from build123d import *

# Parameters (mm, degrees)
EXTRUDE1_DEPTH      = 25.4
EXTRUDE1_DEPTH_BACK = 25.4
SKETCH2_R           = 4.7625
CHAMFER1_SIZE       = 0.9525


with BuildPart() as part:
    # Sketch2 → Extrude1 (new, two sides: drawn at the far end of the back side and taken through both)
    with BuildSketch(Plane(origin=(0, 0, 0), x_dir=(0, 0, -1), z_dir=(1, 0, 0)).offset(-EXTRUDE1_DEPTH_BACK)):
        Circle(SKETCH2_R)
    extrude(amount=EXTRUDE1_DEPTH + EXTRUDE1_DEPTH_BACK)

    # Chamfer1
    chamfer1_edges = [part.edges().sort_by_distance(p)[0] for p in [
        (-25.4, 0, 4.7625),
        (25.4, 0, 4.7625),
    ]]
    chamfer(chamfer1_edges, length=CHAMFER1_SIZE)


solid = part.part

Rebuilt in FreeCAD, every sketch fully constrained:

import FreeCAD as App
import Part
import Sketcher
from FreeCAD import Vector
Q = App.Units.Quantity


def edges_at(feature, points):
    """Names of the edges that pass closest to the given points."""
    edges = feature.Shape.Edges
    near = lambda p: min(range(len(edges)), key=lambda i: edges[i].distToShape(Part.Vertex(*p))[0])
    return sorted({f"Edge{near(p) + 1}" for p in points})

doc = App.newDocument("Part")
body = doc.addObject("PartDesign::Body", "Body")

sketch1 = doc.addObject("Sketcher::SketchObject", "Sketch")
body.addObject(sketch1)
sketch1.AttachmentSupport = (doc.YZ_Plane, [""])
sketch1.MapMode = "FlatFace"
sketch1.addGeometry(Part.Circle(Vector(0, 0, 0), Vector(0, 0, 1), 4.8), False)
sketch1.addConstraint(Sketcher.Constraint("Coincident", 0, 3, -1, 1))
sketch1.addConstraint(Sketcher.Constraint("Diameter", 0, Q("0.375 in")))
pad1 = doc.addObject("PartDesign::Pad", "Pad")
body.addObject(pad1)
pad1.Profile = sketch1
pad1.Type = "TwoLengths"
pad1.Length = Q("1 in")
pad1.Length2 = Q("1 in")
doc.recompute()

chamfer = doc.addObject("PartDesign::Chamfer", "Chamfer")
body.addObject(chamfer)
chamfer.Base = (pad1, edges_at(pad1, [(-25.4, 0, 4.763), (25.4, 0, 4.763)]))
chamfer.Size = Q("0.0375 in")

doc.recompute()
